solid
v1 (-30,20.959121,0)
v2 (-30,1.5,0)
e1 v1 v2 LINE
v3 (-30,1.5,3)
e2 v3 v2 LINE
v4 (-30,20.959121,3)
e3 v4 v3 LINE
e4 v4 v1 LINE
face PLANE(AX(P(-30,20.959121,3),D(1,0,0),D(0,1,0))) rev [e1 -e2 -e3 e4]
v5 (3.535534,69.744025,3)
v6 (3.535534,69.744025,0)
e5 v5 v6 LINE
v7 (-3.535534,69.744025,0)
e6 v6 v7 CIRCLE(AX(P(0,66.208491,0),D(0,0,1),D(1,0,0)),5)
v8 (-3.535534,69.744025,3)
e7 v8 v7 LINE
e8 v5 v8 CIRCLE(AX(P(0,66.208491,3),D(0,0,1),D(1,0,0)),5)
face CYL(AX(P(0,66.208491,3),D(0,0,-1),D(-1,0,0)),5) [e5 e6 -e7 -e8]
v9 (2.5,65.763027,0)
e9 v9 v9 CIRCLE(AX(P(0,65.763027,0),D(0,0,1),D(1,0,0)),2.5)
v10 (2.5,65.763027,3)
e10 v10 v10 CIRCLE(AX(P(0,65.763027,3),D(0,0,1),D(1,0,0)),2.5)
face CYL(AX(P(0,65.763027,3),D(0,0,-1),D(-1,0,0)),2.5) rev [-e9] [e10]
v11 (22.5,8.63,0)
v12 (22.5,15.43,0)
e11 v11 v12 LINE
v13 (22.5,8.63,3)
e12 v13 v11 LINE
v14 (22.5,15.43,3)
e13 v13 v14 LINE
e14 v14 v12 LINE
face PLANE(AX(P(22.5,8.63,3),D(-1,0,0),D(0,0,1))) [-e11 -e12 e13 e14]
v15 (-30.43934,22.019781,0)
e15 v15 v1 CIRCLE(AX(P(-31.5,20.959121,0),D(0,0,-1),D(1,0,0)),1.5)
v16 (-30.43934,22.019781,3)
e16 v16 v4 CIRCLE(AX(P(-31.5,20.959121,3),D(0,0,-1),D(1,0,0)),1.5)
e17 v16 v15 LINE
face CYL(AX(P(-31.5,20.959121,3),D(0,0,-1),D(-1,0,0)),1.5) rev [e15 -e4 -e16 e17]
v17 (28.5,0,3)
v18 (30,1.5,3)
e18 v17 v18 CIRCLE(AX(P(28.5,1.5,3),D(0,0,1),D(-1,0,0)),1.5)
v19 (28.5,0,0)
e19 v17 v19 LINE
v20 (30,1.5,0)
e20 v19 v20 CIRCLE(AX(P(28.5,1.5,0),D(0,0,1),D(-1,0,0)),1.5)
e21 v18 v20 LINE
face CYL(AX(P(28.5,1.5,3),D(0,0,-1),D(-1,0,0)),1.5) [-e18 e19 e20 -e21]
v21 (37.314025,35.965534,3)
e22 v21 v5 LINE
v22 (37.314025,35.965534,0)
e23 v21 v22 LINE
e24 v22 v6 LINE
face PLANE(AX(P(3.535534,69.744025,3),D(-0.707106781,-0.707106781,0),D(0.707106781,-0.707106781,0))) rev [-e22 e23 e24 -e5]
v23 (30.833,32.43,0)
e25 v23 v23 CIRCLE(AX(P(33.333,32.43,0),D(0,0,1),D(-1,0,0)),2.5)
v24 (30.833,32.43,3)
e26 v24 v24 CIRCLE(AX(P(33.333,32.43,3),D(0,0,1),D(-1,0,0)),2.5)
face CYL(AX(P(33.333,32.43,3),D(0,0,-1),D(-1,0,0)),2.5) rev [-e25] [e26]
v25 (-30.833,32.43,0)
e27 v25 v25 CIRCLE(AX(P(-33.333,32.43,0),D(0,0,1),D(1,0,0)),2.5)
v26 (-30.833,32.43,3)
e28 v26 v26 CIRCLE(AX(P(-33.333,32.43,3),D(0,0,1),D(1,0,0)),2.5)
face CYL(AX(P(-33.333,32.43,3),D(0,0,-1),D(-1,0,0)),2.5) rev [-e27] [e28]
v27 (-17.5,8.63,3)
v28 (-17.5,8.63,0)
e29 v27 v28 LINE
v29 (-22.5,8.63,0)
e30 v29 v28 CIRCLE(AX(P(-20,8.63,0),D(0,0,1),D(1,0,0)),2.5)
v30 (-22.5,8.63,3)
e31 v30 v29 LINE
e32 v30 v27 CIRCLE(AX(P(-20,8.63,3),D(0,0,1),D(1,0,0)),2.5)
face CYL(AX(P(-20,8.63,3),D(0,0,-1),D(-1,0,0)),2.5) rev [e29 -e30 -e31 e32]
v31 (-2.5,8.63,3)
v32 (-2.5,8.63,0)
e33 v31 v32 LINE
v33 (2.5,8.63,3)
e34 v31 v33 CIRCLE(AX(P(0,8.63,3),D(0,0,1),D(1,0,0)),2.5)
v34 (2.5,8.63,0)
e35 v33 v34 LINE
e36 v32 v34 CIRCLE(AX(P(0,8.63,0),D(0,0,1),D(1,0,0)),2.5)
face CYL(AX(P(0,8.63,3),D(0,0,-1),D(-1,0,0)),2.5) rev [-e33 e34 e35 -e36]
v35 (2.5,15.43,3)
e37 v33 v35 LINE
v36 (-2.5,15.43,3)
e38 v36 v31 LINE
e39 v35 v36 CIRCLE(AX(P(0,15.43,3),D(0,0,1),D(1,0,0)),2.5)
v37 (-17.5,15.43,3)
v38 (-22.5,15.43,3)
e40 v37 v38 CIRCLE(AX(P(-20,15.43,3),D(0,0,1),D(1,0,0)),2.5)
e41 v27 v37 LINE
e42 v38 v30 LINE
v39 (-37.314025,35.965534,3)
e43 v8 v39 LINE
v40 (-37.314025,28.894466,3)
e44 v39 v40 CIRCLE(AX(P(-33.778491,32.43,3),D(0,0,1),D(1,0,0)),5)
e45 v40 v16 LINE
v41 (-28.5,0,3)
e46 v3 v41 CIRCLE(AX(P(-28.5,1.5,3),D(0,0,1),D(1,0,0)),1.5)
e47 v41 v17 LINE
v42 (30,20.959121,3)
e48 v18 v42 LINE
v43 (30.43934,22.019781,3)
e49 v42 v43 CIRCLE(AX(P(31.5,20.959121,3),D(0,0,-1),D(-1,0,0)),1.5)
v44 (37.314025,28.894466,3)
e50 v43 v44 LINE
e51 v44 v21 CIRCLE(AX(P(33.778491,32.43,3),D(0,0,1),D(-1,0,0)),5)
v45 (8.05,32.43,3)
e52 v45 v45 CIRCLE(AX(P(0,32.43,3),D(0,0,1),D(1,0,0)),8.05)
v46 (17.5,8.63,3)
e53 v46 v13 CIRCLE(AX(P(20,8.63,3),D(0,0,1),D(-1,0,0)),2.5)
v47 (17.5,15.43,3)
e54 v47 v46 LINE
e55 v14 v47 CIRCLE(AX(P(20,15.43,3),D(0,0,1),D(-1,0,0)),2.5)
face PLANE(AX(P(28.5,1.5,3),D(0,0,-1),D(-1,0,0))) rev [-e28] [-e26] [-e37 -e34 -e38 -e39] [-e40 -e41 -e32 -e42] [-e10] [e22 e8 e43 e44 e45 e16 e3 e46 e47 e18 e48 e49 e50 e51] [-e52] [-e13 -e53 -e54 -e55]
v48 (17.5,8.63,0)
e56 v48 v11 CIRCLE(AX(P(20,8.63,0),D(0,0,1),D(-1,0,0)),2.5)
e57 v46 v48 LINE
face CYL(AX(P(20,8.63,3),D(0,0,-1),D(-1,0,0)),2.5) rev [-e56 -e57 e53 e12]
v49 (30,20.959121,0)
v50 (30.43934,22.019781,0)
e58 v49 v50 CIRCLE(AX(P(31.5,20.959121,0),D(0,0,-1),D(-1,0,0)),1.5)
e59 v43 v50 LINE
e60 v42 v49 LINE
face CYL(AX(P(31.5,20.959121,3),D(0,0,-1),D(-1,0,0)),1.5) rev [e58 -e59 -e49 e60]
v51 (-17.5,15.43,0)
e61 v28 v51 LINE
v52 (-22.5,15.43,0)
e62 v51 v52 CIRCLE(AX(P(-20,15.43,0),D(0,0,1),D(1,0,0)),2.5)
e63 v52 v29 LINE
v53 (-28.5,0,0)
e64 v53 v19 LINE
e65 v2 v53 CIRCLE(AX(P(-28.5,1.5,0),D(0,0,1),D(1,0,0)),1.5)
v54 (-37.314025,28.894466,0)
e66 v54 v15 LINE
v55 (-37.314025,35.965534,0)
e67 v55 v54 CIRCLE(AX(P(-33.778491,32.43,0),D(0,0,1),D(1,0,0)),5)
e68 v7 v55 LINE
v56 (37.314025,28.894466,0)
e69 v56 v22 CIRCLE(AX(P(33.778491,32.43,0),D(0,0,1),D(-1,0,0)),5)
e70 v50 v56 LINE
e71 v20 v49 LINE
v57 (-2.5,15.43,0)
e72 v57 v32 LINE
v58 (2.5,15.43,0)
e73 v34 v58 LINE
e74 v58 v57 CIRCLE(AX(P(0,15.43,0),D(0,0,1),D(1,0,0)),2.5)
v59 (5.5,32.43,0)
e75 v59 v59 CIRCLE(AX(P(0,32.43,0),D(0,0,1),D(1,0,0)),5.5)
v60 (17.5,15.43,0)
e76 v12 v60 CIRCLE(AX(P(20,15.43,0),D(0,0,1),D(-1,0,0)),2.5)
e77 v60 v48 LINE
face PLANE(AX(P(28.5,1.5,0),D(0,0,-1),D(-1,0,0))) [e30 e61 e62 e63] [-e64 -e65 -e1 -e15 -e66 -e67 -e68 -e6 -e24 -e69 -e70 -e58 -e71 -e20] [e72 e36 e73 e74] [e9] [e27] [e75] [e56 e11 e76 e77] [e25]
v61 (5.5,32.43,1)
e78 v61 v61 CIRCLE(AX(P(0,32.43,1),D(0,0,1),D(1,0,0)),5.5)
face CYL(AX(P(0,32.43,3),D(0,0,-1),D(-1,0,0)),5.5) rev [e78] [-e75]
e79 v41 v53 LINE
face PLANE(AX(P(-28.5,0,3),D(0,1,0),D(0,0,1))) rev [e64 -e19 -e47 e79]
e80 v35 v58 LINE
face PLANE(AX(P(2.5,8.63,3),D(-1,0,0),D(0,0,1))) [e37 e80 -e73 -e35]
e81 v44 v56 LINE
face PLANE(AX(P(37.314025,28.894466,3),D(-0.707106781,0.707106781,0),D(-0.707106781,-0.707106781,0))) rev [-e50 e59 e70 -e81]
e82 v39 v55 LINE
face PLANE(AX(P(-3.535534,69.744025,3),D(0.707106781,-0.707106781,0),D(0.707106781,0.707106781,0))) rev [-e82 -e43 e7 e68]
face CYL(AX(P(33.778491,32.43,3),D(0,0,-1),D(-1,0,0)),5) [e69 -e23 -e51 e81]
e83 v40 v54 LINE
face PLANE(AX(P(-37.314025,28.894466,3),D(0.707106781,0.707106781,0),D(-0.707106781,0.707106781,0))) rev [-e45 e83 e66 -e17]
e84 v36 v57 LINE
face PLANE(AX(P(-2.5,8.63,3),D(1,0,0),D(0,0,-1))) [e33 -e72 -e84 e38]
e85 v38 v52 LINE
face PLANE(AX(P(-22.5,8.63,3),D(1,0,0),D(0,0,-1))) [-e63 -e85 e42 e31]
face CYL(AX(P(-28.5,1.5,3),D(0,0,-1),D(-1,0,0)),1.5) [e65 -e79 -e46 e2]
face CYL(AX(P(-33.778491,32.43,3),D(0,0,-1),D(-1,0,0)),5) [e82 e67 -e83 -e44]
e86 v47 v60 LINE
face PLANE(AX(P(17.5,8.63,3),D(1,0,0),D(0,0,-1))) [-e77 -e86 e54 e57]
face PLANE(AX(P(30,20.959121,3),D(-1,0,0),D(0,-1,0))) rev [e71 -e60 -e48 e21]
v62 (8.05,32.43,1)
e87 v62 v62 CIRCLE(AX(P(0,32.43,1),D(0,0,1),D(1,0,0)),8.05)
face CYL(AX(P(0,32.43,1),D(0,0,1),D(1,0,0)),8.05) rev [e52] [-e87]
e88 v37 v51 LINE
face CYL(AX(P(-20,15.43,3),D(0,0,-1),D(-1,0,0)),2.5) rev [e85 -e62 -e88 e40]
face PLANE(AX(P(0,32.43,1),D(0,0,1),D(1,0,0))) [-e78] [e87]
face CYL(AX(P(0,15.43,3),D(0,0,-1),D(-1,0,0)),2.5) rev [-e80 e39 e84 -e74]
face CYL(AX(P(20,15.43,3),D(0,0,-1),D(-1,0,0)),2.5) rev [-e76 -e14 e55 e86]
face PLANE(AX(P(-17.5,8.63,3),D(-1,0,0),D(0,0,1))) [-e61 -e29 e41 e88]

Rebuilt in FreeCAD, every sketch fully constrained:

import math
import FreeCAD as App
import Part
import Sketcher

V = App.Vector

doc = App.newDocument("Part")
body = doc.addObject("PartDesign::Body", "Body")

# Sketch on XY plane
sketch1 = body.newObject("Sketcher::SketchObject", "Sketch")
sketch1.AttachmentSupport = (doc.getObject("XY_Plane"), [""])
sketch1.MapMode = "FlatFace"
sketch1.addGeometry([
    Part.LineSegment(V(-28.5, 0, 0), V(28.5, 0, 0)),  # 0
    Part.ArcOfCircle(Part.Circle(V(28.5, 1.5, 0), V(0, 0, 1), 1.5), math.radians(-90), math.radians(0)),  # 1
    Part.LineSegment(V(30, 1.5, 0), V(30, 21, 0)),  # 2
    Part.ArcOfCircle(Part.Circle(V(31.5, 21, 0), V(0, 0, 1), 1.5), math.radians(135), math.radians(180)),  # 3
    Part.LineSegment(V(30.4, 22, 0), V(37.3, 28.9, 0)),  # 4
    Part.ArcOfCircle(Part.Circle(V(33.8, 32.4, 0), V(0, 0, 1), 5), math.radians(-45), math.radians(45)),  # 5
    Part.LineSegment(V(37.3, 36, 0), V(3.5, 69.7, 0)),  # 6
    Part.ArcOfCircle(Part.Circle(V(0, 66.2, 0), V(0, 0, 1), 5), math.radians(45), math.radians(135)),  # 7
    Part.LineSegment(V(-3.5, 69.7, 0), V(-37.3, 36, 0)),  # 8
    Part.ArcOfCircle(Part.Circle(V(-33.8, 32.4, 0), V(0, 0, 1), 5), math.radians(135), math.radians(225)),  # 9
    Part.LineSegment(V(-37.3, 28.9, 0), V(-30.4, 22, 0)),  # 10
    Part.ArcOfCircle(Part.Circle(V(-31.5, 21, 0), V(0, 0, 1), 1.5), math.radians(0), math.radians(45)),  # 11
    Part.LineSegment(V(-30, 21, 0), V(-30, 1.5, 0)),  # 12
    Part.ArcOfCircle(Part.Circle(V(-28.5, 1.5, 0), V(0, 0, 1), 1.5), math.radians(180), math.radians(270)),  # 13
    Part.ArcOfCircle(Part.Circle(V(-20, 8.6, 0), V(0, 0, 1), 2.5), math.radians(180), math.radians(360)),  # 14
    Part.LineSegment(V(-22.5, 8.6, 0), V(-22.5, 15.4, 0)),  # 15
    Part.ArcOfCircle(Part.Circle(V(-20, 15.4, 0), V(0, 0, 1), 2.5), math.radians(0), math.radians(180)),  # 16
    Part.LineSegment(V(-17.5, 15.4, 0), V(-17.5, 8.6, 0)),  # 17
    Part.Circle(V(-33.3, 32.4, 0), V(0, 0, 1), 2.5),  # 18
    Part.ArcOfCircle(Part.Circle(V(0, 8.6, 0), V(0, 0, 1), 2.5), math.radians(180), math.radians(360)),  # 19
    Part.LineSegment(V(-2.5, 8.6, 0), V(-2.5, 15.4, 0)),  # 20
    Part.ArcOfCircle(Part.Circle(V(0, 15.4, 0), V(0, 0, 1), 2.5), math.radians(0), math.radians(180)),  # 21
    Part.LineSegment(V(2.5, 15.4, 0), V(2.5, 8.6, 0)),  # 22
    Part.LineSegment(V(22.5, 15.4, 0), V(22.5, 8.6, 0)),  # 23
    Part.ArcOfCircle(Part.Circle(V(20, 8.6, 0), V(0, 0, 1), 2.5), math.radians(180), math.radians(360)),  # 24
    Part.LineSegment(V(17.5, 8.6, 0), V(17.5, 15.4, 0)),  # 25
    Part.ArcOfCircle(Part.Circle(V(20, 15.4, 0), V(0, 0, 1), 2.5), math.radians(0), math.radians(180)),  # 26
    Part.Circle(V(0, 32.4, 0), V(0, 0, 1), 5.5),  # 27
    Part.Circle(V(33.3, 32.4, 0), V(0, 0, 1), 2.5),  # 28
    Part.Circle(V(0, 65.8, 0), V(0, 0, 1), 2.5),  # 29
], False)
sketch1.addConstraint([
    Sketcher.Constraint("Tangent", 0, 2, 1, 1),
    Sketcher.Constraint("Tangent", 1, 2, 2, 1),
    Sketcher.Constraint("Tangent", 2, 2, 3, 2),
    Sketcher.Constraint("Tangent", 3, 1, 4, 1),
    Sketcher.Constraint("Tangent", 4, 2, 5, 1),
    Sketcher.Constraint("Tangent", 5, 2, 6, 1),
    Sketcher.Constraint("Tangent", 6, 2, 7, 1),
    Sketcher.Constraint("Tangent", 7, 2, 8, 1),
    Sketcher.Constraint("Tangent", 8, 2, 9, 1),
    Sketcher.Constraint("Tangent", 9, 2, 10, 1),
    Sketcher.Constraint("Tangent", 10, 2, 11, 2),
    Sketcher.Constraint("Tangent", 11, 1, 12, 1),
    Sketcher.Constraint("Tangent", 12, 2, 13, 1),
    Sketcher.Constraint("Tangent", 13, 2, 0, 1),
    Sketcher.Constraint("Tangent", 14, 1, 15, 1),
    Sketcher.Constraint("Tangent", 15, 2, 16, 2),
    Sketcher.Constraint("Tangent", 16, 1, 17, 1),
    Sketcher.Constraint("Tangent", 17, 2, 14, 2),
    Sketcher.Constraint("Tangent", 19, 1, 20, 1),
    Sketcher.Constraint("Tangent", 20, 2, 21, 2),
    Sketcher.Constraint("Tangent", 21, 1, 22, 1),
    Sketcher.Constraint("Tangent", 22, 2, 19, 2),
    Sketcher.Constraint("Tangent", 23, 2, 24, 2),
    Sketcher.Constraint("Tangent", 24, 1, 25, 1),
    Sketcher.Constraint("Tangent", 25, 2, 26, 2),
    Sketcher.Constraint("Tangent", 26, 1, 23, 1),
    Sketcher.Constraint("Horizontal", 0),
    Sketcher.Constraint("Vertical", 2),
    Sketcher.Constraint("Vertical", 12),
    Sketcher.Constraint("Vertical", 15),
    Sketcher.Constraint("Vertical", 17),
    Sketcher.Constraint("Vertical", 20),
    Sketcher.Constraint("Vertical", 22),
    Sketcher.Constraint("Vertical", 23),
    Sketcher.Constraint("Vertical", 25),
    Sketcher.Constraint("Equal", 1, 3),
    Sketcher.Constraint("Equal", 5, 7),
    Sketcher.Constraint("Equal", 7, 9),
    Sketcher.Constraint("Equal", 3, 11),
    Sketcher.Constraint("Equal", 11, 13),
    Sketcher.Constraint("Equal", 16, 18),
    Sketcher.Constraint("Equal", 18, 19),
    Sketcher.Constraint("Equal", 21, 24),
    Sketcher.Constraint("Equal", 26, 28),
    Sketcher.Constraint("Equal", 28, 29),
    Sketcher.Constraint("Symmetric", 0, 2, 13, 2, -1, 1),
    Sketcher.Constraint("Symmetric", 5, 3, 9, 3, -2),
    Sketcher.Constraint("Symmetric", 14, 3, 24, 3, -2),
    Sketcher.Constraint("Symmetric", 18, 3, 28, 3, -2),
    Sketcher.Constraint("PointOnObject", 7, 3, -2),
    Sketcher.Constraint("PointOnObject", 19, 3, -2),
    Sketcher.Constraint("PointOnObject", 27, 3, -2),
    Sketcher.Constraint("PointOnObject", 29, 3, -2),
    Sketcher.Constraint("Perpendicular", 4, 6),
    Sketcher.Constraint("Perpendicular", 6, 8),
    Sketcher.Constraint("Perpendicular", 8, 10),
    Sketcher.Constraint("Horizontal", 9, 3, 18, 3),
    Sketcher.Constraint("Horizontal", 14, 3, 19, 3),
    Sketcher.Constraint("Horizontal", 16, 3, 21, 3),
    Sketcher.Constraint("Horizontal", 21, 3, 26, 3),
    Sketcher.Constraint("Horizontal", 18, 3, 27, 3),
    Sketcher.Constraint("Diameter", 18, 5.0),
    Sketcher.Constraint("Diameter", 27, 11.0),
    Sketcher.Constraint("Radius", 5, 5.0),
    Sketcher.Constraint("Radius", 1, 1.5),
    Sketcher.Constraint("DistanceX", 0, 1, 0, 2, 57.0),
    Sketcher.Constraint("DistanceY", 15, 1, 15, 2, 6.8),
    Sketcher.Constraint("DistanceX", 14, 3, -1, 1, 20.0),
    Sketcher.Constraint("DistanceY", 16, 3, 9, 3, 17.0),
    Sketcher.Constraint("Distance", 6, 47.77),
    Sketcher.Constraint("DistanceY", -1, 1, 5, 3, 32.43),
    Sketcher.Constraint("DistanceX", 18, 3, -1, 1, 33.333),
    Sketcher.Constraint("DistanceY", -1, 1, 29, 3, 65.763027),
])
pad1 = body.newObject("PartDesign::Pad", "Pad")
pad1.Profile = sketch1
pad1.Length = 3

# Sketch on XY plane
sketch2 = body.newObject("Sketcher::SketchObject", "Sketch001")
sketch2.AttachmentSupport = (doc.getObject("XY_Plane"), [""])
sketch2.MapMode = "FlatFace"
sketch2.AttachmentOffset = App.Placement(V(0, 0, 3), App.Rotation())
sketch2.addGeometry(Part.Circle(V(0, 32, 0), V(0, 0, 1), 8), False)
sketch2.addConstraint([
    Sketcher.Constraint("PointOnObject", 0, 3, -2),
    Sketcher.Constraint("Diameter", 0, 16.1),
    Sketcher.Constraint("DistanceY", -1, 1, 0, 3, 32.43),
])
pocket1 = body.newObject("PartDesign::Pocket", "Pocket")
pocket1.Profile = sketch2
pocket1.Length = 2

doc.recompute()
